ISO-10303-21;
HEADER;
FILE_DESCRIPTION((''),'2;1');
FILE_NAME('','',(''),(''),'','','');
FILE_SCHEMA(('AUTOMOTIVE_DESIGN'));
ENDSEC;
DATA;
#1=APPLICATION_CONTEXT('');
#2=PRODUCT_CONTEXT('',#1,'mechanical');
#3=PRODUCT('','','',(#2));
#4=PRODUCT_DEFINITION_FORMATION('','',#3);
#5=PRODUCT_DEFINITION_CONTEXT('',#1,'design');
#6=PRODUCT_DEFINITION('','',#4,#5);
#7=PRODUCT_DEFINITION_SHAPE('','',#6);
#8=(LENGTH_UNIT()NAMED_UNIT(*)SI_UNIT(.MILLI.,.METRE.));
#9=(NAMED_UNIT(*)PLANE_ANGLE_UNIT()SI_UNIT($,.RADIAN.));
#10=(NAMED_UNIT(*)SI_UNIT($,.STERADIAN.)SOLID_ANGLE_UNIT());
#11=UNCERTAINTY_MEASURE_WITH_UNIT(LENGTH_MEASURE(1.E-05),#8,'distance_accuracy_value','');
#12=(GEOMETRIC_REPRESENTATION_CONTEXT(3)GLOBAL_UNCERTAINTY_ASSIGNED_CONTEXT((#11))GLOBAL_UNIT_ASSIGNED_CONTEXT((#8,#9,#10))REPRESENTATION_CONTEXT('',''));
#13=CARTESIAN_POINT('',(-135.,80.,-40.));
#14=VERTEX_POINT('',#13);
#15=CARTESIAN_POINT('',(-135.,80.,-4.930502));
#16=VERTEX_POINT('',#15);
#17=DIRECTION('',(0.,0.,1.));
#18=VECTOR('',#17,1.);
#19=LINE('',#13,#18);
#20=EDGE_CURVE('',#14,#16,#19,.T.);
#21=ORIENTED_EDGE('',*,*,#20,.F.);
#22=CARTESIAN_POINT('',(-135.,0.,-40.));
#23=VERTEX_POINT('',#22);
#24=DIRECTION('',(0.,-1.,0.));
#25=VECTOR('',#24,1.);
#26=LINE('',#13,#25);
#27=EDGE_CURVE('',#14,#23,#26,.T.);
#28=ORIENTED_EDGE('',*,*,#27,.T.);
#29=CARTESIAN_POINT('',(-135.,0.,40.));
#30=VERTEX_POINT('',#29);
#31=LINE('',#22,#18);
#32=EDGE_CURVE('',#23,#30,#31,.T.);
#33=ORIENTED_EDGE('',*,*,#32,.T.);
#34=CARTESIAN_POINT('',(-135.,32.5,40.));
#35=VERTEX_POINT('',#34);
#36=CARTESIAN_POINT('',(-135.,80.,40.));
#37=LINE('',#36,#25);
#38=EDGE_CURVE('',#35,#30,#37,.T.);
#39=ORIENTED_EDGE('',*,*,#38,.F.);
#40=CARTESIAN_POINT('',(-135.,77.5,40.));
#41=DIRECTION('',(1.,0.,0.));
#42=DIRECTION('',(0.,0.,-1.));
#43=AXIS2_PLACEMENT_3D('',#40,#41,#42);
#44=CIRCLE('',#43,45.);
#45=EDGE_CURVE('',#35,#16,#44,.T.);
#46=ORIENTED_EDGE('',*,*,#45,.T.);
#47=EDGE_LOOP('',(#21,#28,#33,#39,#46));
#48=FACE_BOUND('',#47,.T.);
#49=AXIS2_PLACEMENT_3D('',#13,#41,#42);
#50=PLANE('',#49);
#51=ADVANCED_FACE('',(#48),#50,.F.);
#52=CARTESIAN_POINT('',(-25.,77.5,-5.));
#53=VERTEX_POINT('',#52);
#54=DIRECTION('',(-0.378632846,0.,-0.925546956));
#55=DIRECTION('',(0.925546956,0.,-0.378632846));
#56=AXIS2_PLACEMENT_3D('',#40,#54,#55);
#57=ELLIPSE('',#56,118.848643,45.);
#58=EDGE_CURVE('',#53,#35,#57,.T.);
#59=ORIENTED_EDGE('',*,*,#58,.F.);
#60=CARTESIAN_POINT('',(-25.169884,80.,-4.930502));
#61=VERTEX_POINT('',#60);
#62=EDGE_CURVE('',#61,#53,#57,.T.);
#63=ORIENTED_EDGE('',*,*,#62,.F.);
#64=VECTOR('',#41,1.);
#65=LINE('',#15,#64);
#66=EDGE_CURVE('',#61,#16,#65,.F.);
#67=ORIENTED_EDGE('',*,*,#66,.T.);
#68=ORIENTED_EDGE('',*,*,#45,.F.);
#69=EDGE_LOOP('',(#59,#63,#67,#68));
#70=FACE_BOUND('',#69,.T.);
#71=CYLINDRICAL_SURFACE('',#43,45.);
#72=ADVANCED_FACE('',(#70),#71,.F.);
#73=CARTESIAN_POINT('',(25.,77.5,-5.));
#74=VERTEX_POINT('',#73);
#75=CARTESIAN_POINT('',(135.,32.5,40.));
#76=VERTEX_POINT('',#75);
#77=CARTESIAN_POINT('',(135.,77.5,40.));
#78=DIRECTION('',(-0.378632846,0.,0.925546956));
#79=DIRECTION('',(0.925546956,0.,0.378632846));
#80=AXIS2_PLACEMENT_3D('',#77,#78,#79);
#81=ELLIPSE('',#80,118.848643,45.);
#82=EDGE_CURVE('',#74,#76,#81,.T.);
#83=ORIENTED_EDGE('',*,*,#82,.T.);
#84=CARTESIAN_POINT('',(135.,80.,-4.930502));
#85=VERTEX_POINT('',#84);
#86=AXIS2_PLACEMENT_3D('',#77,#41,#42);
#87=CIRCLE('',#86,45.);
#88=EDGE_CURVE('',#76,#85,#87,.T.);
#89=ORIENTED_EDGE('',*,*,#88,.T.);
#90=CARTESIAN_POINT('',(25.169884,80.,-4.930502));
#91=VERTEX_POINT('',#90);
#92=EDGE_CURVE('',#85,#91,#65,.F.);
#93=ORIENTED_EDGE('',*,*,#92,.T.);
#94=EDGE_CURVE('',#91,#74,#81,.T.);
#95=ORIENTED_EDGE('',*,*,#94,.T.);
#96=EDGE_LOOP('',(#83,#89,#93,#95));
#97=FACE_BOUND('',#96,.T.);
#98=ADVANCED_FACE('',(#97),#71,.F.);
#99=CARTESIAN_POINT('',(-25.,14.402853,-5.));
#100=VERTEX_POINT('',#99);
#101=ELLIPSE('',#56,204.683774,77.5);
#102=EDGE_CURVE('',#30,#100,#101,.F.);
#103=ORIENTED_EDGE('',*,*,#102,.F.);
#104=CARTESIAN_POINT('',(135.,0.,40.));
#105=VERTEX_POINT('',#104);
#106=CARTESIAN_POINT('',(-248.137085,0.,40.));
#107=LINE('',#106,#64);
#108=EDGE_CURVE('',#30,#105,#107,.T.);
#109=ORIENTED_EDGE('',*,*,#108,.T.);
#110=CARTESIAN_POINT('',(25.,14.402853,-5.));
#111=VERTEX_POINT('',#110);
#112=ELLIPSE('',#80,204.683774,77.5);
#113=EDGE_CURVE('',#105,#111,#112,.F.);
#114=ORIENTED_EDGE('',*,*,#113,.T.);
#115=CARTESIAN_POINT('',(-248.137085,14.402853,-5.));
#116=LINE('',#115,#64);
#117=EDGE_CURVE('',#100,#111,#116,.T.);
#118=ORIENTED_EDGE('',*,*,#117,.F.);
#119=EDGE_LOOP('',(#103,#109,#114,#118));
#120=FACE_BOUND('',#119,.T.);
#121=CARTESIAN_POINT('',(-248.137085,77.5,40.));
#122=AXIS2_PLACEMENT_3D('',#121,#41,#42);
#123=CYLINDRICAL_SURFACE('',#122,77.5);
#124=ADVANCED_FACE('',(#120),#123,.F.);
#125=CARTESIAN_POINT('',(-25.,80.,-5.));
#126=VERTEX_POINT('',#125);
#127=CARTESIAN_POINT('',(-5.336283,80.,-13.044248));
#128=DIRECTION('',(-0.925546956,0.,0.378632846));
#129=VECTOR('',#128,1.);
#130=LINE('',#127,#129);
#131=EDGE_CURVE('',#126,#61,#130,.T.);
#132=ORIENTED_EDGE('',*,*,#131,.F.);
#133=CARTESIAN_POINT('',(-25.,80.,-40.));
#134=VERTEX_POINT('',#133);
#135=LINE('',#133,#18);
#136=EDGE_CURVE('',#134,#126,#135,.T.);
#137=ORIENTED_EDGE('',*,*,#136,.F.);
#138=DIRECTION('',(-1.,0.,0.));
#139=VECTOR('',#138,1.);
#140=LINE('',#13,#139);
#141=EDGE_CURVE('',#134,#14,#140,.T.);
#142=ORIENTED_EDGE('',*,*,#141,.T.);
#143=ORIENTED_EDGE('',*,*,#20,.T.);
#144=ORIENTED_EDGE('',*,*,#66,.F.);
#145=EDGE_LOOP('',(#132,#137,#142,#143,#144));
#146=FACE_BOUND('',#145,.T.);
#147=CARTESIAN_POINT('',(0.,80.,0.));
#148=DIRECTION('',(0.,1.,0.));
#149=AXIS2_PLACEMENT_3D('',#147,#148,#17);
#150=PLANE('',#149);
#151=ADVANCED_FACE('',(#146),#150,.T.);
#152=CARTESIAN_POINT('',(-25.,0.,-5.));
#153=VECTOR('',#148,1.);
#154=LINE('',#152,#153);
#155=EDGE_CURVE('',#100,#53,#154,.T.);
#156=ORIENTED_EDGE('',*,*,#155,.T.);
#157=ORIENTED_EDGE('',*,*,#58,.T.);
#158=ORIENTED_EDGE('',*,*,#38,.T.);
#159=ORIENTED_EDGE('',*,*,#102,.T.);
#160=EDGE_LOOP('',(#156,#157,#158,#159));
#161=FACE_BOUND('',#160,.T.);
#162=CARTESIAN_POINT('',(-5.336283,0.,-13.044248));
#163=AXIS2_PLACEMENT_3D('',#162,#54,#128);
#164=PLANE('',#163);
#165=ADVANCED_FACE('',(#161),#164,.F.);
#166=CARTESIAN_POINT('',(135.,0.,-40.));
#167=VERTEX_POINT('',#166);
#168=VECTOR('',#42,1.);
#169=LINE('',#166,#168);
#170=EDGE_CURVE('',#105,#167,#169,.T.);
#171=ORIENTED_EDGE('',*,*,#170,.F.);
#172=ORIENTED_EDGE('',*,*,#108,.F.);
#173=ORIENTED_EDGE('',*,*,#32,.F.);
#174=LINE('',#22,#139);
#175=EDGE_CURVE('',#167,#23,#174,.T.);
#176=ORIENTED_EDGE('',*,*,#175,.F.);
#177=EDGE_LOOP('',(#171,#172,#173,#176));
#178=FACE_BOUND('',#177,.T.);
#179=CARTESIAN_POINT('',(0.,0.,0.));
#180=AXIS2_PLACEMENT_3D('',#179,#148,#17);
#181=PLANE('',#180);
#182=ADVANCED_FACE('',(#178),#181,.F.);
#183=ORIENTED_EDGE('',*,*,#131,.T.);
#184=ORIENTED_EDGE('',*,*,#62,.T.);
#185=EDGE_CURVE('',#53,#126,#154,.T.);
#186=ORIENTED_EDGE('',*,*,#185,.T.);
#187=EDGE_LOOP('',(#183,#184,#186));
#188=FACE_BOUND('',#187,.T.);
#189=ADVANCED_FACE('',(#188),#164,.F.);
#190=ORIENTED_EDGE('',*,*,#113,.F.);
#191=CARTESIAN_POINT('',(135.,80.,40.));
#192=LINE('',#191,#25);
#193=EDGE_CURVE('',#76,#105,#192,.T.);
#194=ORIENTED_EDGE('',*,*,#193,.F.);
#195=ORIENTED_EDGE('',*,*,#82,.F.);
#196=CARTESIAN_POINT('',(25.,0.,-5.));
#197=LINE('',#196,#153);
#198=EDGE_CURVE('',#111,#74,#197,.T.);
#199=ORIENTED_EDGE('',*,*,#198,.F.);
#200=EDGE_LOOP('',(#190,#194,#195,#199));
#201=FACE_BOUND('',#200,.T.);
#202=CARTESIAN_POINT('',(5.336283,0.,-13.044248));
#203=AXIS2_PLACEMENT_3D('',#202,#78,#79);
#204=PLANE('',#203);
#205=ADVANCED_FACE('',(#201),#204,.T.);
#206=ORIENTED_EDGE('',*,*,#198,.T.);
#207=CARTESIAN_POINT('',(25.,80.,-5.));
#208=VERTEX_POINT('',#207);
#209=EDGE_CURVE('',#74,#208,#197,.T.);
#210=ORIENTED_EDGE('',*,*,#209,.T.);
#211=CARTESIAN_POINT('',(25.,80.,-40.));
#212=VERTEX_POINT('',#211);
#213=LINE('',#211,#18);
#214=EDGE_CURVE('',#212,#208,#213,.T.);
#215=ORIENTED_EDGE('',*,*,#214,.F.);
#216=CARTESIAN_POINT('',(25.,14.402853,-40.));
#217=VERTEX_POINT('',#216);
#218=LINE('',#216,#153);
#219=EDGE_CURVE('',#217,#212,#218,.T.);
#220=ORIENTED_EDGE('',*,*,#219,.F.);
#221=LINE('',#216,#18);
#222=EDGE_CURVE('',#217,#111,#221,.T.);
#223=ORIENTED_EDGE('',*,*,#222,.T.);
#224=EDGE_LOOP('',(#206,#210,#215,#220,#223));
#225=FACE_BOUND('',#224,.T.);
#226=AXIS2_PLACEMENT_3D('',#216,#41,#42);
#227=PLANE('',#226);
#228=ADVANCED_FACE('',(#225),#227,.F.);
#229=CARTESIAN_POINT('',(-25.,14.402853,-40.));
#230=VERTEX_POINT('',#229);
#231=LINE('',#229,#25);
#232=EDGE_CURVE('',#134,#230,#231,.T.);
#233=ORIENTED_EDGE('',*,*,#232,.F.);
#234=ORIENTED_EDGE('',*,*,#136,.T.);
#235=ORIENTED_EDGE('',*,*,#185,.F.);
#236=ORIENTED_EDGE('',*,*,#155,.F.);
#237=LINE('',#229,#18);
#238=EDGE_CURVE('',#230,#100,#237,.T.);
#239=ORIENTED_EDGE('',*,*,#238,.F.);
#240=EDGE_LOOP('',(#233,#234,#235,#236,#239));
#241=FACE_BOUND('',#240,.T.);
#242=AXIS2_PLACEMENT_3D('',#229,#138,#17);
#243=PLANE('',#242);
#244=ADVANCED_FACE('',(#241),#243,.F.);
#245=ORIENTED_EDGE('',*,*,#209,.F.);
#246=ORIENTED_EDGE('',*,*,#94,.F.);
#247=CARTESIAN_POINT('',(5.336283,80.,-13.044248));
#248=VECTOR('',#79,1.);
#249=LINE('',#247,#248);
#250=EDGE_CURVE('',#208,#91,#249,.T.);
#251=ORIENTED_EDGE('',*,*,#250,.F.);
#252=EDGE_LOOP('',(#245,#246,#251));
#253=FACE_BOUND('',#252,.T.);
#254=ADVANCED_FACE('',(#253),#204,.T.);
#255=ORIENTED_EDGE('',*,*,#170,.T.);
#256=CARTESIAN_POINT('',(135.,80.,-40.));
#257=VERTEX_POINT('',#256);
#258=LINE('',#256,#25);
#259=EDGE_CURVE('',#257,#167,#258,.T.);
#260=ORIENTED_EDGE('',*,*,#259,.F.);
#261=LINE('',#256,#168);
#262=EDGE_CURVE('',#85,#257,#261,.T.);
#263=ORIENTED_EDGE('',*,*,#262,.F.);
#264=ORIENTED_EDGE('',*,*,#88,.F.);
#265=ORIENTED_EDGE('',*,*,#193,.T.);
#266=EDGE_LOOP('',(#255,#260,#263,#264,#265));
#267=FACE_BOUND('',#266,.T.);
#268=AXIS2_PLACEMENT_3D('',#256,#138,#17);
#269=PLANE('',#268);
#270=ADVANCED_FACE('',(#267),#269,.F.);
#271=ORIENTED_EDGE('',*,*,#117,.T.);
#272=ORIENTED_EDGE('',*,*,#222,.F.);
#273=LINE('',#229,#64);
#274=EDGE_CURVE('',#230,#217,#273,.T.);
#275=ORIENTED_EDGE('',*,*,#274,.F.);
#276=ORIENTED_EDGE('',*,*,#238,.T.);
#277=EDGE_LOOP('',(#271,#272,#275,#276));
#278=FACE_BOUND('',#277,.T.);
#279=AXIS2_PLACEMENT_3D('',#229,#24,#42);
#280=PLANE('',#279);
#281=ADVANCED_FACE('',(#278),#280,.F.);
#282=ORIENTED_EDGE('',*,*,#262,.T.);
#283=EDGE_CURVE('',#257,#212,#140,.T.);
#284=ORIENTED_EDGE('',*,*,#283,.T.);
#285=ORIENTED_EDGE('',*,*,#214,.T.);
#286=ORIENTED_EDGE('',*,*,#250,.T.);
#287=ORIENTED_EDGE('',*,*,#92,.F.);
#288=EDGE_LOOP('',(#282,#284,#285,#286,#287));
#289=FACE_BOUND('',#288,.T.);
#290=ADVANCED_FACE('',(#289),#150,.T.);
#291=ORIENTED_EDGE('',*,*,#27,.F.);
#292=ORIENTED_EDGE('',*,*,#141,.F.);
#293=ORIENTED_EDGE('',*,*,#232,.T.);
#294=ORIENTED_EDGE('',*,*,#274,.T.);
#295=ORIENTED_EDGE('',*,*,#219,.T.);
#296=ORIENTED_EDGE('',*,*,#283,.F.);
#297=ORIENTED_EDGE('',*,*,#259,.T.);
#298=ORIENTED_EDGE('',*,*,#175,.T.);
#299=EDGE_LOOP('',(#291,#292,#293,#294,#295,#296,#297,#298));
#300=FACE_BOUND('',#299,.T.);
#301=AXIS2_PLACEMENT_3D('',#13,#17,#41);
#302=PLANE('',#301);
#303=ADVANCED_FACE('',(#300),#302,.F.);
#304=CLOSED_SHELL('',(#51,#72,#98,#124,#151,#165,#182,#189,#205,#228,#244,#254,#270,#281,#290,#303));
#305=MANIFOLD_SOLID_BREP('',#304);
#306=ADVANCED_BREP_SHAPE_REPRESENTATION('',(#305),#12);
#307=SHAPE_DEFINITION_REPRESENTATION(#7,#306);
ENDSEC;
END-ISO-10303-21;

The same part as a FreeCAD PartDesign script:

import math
import FreeCAD as App
import Part
import Sketcher
Q = App.Units.Quantity


def add_polygon(sketch, points):
    """Adds a closed chain of lines whose ends are joined by coincident constraints."""
    first, n = sketch.GeometryCount, len(points)
    for a, b in zip(points, points[1:] + points[:1]):
        sketch.addGeometry(Part.LineSegment(App.Vector(*a, 0), App.Vector(*b, 0)), False)
    for i in range(n):
        sketch.addConstraint(Sketcher.Constraint("Coincident", first + i, 2, first + (i + 1) % n, 1))

doc = App.newDocument("Part")
body = doc.addObject("PartDesign::Body", "Body")

sketch1 = body.newObject("Sketcher::SketchObject", "Sketch")
sketch1.AttachmentSupport = (doc.getObject("XZ_Plane"), [""])
sketch1.MapMode = "FlatFace"
add_polygon(sketch1, [(-135, -40), (-135, 40), (135, 40), (135, -40)])
sketch1.addConstraint([
    Sketcher.Constraint("Vertical", 0),
    Sketcher.Constraint("Horizontal", 1),
    Sketcher.Constraint("Vertical", 2),
    Sketcher.Constraint("Horizontal", 3),
    Sketcher.Constraint("Symmetric", 0, 2, 2, 2, -1, 1),
    Sketcher.Constraint("DistanceX", 1, 1, 1, 2, Q("270 mm")),
    Sketcher.Constraint("DistanceY", 0, 1, 0, 2, Q("80 mm")),
])
pad1 = body.newObject("PartDesign::Pad", "Pad")
pad1.Profile = sketch1
pad1.Length = 80
pad1.Reversed = True

sketch2 = body.newObject("Sketcher::SketchObject", "Sketch001")
sketch2.AttachmentSupport = (doc.getObject("XZ_Plane"), [""])
sketch2.MapMode = "FlatFace"
sketch2.AttachmentOffset = App.Placement(App.Vector(0, 0, -80), App.Rotation())
add_polygon(sketch2, [(-25, -5), (-135, 40), (135, 40), (25, -5)])
sketch2.addConstraint([
    Sketcher.Constraint("Horizontal", 1),
    Sketcher.Constraint("Horizontal", 3),
    Sketcher.Constraint("Equal", 0, 2),
    Sketcher.Constraint("DistanceX", 1, 1, 1, 2, Q("270 mm")),
    Sketcher.Constraint("DistanceX", 3, 2, 3, 1, Q("50 mm")),
    Sketcher.Constraint("DistanceX", 0, 2, -1, 1, Q("135 mm")),
    Sketcher.Constraint("DistanceY", -1, 1, 0, 2, Q("40 mm")),
    Sketcher.Constraint("DistanceY", 2, 2, -1, 1, Q("5 mm")),
])
pocket1 = body.newObject("PartDesign::Pocket", "Pocket")
pocket1.Profile = sketch2
pocket1.Type = "ThroughAll"
pocket1.Reversed = True

sketch3 = body.newObject("Sketcher::SketchObject", "Sketch002")
sketch3.AttachmentSupport = (doc.getObject("YZ_Plane"), [""])
sketch3.MapMode = "FlatFace"
sketch3.AttachmentOffset = App.Placement(App.Vector(0, 0, 135), App.Rotation())
sketch3.addGeometry([
    Part.LineSegment(App.Vector(80, -40, 0), App.Vector(80, -37.459667, 0)),
    Part.ArcOfCircle(Part.Circle(App.Vector(77.5, 40, 0), App.Vector(0, 0, 1), 77.5), math.radians(-180), math.radians(-88.151428)),
    Part.LineSegment(App.Vector(0, 40, 0), App.Vector(0, -40, 0)),
    Part.LineSegment(App.Vector(0, -40, 0), App.Vector(80, -40, 0)),
], False)
sketch3.addConstraint([
    Sketcher.Constraint("Coincident", 0, 2, 1, 2),
    Sketcher.Constraint("Tangent", 1, 1, 2, 1),
    Sketcher.Constraint("Coincident", 2, 2, 3, 1),
    Sketcher.Constraint("Coincident", 3, 2, 0, 1),
    Sketcher.Constraint("Vertical", 0),
    Sketcher.Constraint("Vertical", 2),
    Sketcher.Constraint("Horizontal", 3),
    Sketcher.Constraint("Symmetric", 1, 1, 2, 2, -1, 1),
    Sketcher.Constraint("Equal", 3, 2),
    Sketcher.Constraint("Radius", 1, Q("77.5 mm")),
    Sketcher.Constraint("DistanceX", 3, 1, 3, 2, Q("80 mm")),
])
pad2 = body.newObject("PartDesign::Pad", "Pad001")
pad2.Profile = sketch3
pad2.Length = 270
pad2.Reversed = True

sketch4 = body.newObject("Sketcher::SketchObject", "Sketch003")
sketch4.AttachmentSupport = (doc.getObject("YZ_Plane"), [""])
sketch4.MapMode = "FlatFace"
sketch4.AttachmentOffset = App.Placement(App.Vector(0, 0, 135), App.Rotation())
sketch4.addGeometry(Part.Circle(App.Vector(77.5, 40, 0), App.Vector(0, 0, 1), 45), False)
sketch4.addConstraint([
    Sketcher.Constraint("Diameter", 0, Q("90 mm")),
    Sketcher.Constraint("DistanceY", -1, 1, 0, 3, Q("40 mm")),
    Sketcher.Constraint("DistanceX", -1, 1, 0, 3, Q("77.5 mm")),
])
pocket2 = body.newObject("PartDesign::Pocket", "Pocket001")
pocket2.Profile = sketch4
pocket2.Type = "ThroughAll"

sketch5 = body.newObject("Sketcher::SketchObject", "Sketch004")
sketch5.AttachmentSupport = (doc.getObject("XY_Plane"), [""])
sketch5.MapMode = "FlatFace"
sketch5.AttachmentOffset = App.Placement(App.Vector(0, 0, -5), App.Rotation())
add_polygon(sketch5, [(-25, 80), (-25, 14.402853), (25, 14.402853), (25, 80)])
sketch5.addConstraint([
    Sketcher.Constraint("Vertical", 0),
    Sketcher.Constraint("Horizontal", 1),
    Sketcher.Constraint("Vertical", 2),
    Sketcher.Constraint("Horizontal", 3),
    Sketcher.Constraint("DistanceX", 1, 1, 1, 2, Q("50 mm")),
    Sketcher.Constraint("DistanceX", 0, 2, -1, 1, Q("25 mm")),
    Sketcher.Constraint("DistanceY", -1, 1, 2, 2, Q("80 mm")),
    Sketcher.Constraint("DistanceY", 0, 2, 0, 1, Q("65.597147 mm")),
])
pocket3 = body.newObject("PartDesign::Pocket", "Pocket002")
pocket3.Profile = sketch5
pocket3.Type = "ThroughAll"

doc.recompute()
